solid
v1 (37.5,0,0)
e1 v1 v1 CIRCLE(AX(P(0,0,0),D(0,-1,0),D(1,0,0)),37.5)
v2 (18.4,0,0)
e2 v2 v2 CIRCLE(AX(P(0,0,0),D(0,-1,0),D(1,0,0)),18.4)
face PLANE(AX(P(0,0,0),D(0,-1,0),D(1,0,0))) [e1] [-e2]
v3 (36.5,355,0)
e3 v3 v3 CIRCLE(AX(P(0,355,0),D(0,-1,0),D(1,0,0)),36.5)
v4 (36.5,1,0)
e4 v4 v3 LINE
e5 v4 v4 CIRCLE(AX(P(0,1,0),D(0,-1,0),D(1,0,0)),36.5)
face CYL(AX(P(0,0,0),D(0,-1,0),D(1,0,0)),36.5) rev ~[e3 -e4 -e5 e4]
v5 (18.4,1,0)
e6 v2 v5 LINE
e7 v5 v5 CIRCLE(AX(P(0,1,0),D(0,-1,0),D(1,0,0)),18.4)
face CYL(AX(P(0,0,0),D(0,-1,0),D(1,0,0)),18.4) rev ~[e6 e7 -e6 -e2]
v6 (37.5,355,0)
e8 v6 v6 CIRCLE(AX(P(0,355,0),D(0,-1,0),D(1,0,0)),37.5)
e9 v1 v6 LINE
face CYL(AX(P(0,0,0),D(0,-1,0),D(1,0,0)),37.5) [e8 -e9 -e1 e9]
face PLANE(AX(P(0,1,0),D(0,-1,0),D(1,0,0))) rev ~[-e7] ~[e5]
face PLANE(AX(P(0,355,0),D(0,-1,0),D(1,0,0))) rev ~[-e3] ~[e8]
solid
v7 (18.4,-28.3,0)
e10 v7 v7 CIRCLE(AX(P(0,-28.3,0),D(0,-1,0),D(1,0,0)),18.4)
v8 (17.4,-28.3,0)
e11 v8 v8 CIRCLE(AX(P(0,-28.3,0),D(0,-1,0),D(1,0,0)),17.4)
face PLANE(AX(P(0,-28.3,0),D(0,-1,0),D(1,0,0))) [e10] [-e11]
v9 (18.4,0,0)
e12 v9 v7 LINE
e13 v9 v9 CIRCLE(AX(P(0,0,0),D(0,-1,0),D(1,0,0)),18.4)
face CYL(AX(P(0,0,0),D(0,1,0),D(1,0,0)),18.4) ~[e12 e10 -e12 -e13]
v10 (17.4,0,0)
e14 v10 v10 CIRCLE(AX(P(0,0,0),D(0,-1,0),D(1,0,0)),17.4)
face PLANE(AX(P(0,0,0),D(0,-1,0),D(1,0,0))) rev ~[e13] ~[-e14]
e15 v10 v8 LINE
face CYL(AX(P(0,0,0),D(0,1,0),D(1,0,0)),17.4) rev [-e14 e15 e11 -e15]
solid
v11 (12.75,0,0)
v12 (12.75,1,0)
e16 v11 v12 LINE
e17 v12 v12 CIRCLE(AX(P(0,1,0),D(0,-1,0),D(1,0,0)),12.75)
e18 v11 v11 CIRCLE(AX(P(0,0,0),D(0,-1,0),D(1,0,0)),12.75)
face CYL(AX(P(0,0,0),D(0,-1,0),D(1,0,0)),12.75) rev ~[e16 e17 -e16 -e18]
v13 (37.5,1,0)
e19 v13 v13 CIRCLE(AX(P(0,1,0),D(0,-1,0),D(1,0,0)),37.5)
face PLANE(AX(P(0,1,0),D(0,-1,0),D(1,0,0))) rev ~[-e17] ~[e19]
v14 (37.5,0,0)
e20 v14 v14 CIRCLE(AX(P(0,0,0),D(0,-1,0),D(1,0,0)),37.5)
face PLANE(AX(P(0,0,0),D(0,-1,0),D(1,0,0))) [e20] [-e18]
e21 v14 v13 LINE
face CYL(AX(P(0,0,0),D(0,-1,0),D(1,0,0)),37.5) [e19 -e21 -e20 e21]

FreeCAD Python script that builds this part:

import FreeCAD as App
import Part
import Sketcher

V = App.Vector

doc = App.newDocument("Part")
body = doc.addObject("PartDesign::Body", "Body")

# Sketch on XZ plane
sketch1 = body.newObject("Sketcher::SketchObject", "Sketch")
sketch1.AttachmentSupport = (doc.getObject("XZ_Plane"), [""])
sketch1.MapMode = "FlatFace"
sketch1.addGeometry([
    Part.Circle(V(0, 0, 0), V(0, 0, 1), 18),
    Part.Circle(V(0, 0, 0), V(0, 0, 1), 17),
], False)
sketch1.addConstraint([
    Sketcher.Constraint("Coincident", 0, 3, -1, 1),
    Sketcher.Constraint("Coincident", 1, 3, -1, 1),
    Sketcher.Constraint("Diameter", 0, 36.8),
    Sketcher.Constraint("Diameter", 1, 34.8),
])
pad1 = body.newObject("PartDesign::Pad", "Pad")
pad1.Profile = sketch1
pad1.Length = 28.3
body2 = doc.addObject("PartDesign::Body", "Body001")

# Sketch on XZ plane
sketch2 = body2.newObject("Sketcher::SketchObject", "Sketch001")
sketch2.AttachmentSupport = (doc.getObject("XZ_Plane001"), [""])
sketch2.MapMode = "FlatFace"
sketch2.addGeometry([
    Part.Circle(V(0, 0, 0), V(0, 0, 1), 38),
    Part.Circle(V(0, 0, 0), V(0, 0, 1), 18),
], False)
sketch2.addConstraint([
    Sketcher.Constraint("Coincident", 0, 3, -1, 1),
    Sketcher.Constraint("Coincident", 1, 3, -1, 1),
    Sketcher.Constraint("Diameter", 0, 75.0),
    Sketcher.Constraint("Diameter", 1, 36.8),
])
pad2 = body2.newObject("PartDesign::Pad", "Pad001")
pad2.Profile = sketch2
pad2.Length = 1
pad2.Reversed = True

# Sketch on XZ plane
sketch3 = body2.newObject("Sketcher::SketchObject", "Sketch002")
sketch3.AttachmentSupport = (doc.getObject("XZ_Plane001"), [""])
sketch3.MapMode = "FlatFace"
sketch3.addGeometry([
    Part.Circle(V(0, 0, 0), V(0, 0, 1), 38),
    Part.Circle(V(0, 0, 0), V(0, 0, 1), 36),
], False)
sketch3.addConstraint([
    Sketcher.Constraint("Coincident", 0, 3, -1, 1),
    Sketcher.Constraint("Coincident", 1, 3, -1, 1),
    Sketcher.Constraint("Diameter", 0, 75.0),
    Sketcher.Constraint("Diameter", 1, 73.0),
])
pad3 = body2.newObject("PartDesign::Pad", "Pad002")
pad3.Profile = sketch3
pad3.Length = 355
pad3.Reversed = True
body3 = doc.addObject("PartDesign::Body", "Body002")

# Sketch on XZ plane
sketch4 = body3.newObject("Sketcher::SketchObject", "Sketch003")
sketch4.AttachmentSupport = (doc.getObject("XZ_Plane002"), [""])
sketch4.MapMode = "FlatFace"
sketch4.addGeometry([
    Part.Circle(V(0, 0, 0), V(0, 0, 1), 38),
    Part.Circle(V(0, 0, 0), V(0, 0, 1), 13),
], False)
sketch4.addConstraint([
    Sketcher.Constraint("Coincident", 0, 3, -1, 1),
    Sketcher.Constraint("Coincident", 1, 3, -1, 1),
    Sketcher.Constraint("Diameter", 0, 75.0),
    Sketcher.Constraint("Diameter", 1, 25.5),
])
pad4 = body3.newObject("PartDesign::Pad", "Pad003")
pad4.Profile = sketch4
pad4.Length = 1
pad4.Reversed = True

doc.recompute()
